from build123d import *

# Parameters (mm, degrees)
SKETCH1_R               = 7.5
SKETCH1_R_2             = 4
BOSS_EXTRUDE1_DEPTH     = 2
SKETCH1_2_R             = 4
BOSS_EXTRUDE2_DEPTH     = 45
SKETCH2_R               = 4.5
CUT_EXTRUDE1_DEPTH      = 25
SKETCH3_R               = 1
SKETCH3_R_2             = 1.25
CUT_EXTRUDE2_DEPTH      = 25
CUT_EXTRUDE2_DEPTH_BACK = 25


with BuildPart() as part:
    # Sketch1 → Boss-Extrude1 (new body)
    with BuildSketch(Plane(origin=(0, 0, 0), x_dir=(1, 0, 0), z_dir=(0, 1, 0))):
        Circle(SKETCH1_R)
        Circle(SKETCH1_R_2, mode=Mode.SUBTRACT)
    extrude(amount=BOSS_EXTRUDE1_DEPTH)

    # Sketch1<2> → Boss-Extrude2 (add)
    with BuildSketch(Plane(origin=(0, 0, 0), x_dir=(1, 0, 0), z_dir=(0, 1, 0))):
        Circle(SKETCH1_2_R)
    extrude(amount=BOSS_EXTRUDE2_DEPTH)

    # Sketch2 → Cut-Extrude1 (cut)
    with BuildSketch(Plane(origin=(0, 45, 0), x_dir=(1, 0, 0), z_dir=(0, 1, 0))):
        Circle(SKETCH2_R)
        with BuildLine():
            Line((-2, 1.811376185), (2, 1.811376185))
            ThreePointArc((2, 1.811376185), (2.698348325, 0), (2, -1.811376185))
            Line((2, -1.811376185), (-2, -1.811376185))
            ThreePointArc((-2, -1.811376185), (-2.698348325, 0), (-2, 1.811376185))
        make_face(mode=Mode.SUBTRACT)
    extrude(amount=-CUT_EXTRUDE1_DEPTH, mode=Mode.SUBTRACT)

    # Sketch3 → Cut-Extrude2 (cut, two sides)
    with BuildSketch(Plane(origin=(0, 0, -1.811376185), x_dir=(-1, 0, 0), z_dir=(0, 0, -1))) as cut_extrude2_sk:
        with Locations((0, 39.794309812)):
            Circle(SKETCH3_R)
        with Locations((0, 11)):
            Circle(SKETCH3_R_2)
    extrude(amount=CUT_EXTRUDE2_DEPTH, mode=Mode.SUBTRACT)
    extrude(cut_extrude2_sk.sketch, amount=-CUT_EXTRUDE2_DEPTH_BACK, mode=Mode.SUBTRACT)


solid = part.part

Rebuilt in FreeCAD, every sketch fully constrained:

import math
import FreeCAD as App
import Part
import Sketcher

V = App.Vector
Q = App.Units.Quantity

doc = App.newDocument("Part")
body = doc.addObject("PartDesign::Body", "Body")

sketch1 = body.newObject("Sketcher::SketchObject", "Sketch")
sketch1.AttachmentSupport = (doc.getObject("XZ_Plane"), [""])
sketch1.MapMode = "FlatFace"
sketch1.addGeometry(Part.Circle(V(0, 0, 0), V(0, 0, 1), 7.5), False)
sketch1.addGeometry(Part.Circle(V(0, 0, 0), V(0, 0, 1), 4), False)
sketch1.addConstraint(Sketcher.Constraint("Coincident", 0, 3, -1, 1))
sketch1.addConstraint(Sketcher.Constraint("Coincident", 1, 3, -1, 1))
sketch1.addConstraint(Sketcher.Constraint("Diameter", 0, Q("15 mm")))
sketch1.addConstraint(Sketcher.Constraint("Diameter", 1, Q("8 mm")))
pad1 = body.newObject("PartDesign::Pad", "Pad")
pad1.Profile = sketch1
pad1.Length = 2
pad1.Reversed = True

sketch2 = body.newObject("Sketcher::SketchObject", "Sketch001")
sketch2.AttachmentSupport = (doc.getObject("XZ_Plane"), [""])
sketch2.MapMode = "FlatFace"
sketch2.addGeometry(Part.Circle(V(0, 0, 0), V(0, 0, 1), 4), False)
sketch2.addConstraint(Sketcher.Constraint("Coincident", 0, 3, -1, 1))
sketch2.addConstraint(Sketcher.Constraint("Diameter", 0, Q("8 mm")))
pad2 = body.newObject("PartDesign::Pad", "Pad001")
pad2.Profile = sketch2
pad2.Length = 45
pad2.Reversed = True

sketch3 = body.newObject("Sketcher::SketchObject", "Sketch002")
sketch3.AttachmentSupport = (doc.getObject("XZ_Plane"), [""])
sketch3.MapMode = "FlatFace"
sketch3.AttachmentOffset = App.Placement(V(0, 0, -45), App.Rotation())
sketch3.addGeometry(Part.Circle(V(0, 0, 0), V(0, 0, 1), 4.5), False)
sketch3.addGeometry(Part.ArcOfCircle(Part.Circle(V(0, 0, 0), V(0, 0, 1), 2.698348), math.radians(137.833239), math.radians(222.166761)), False)
sketch3.addGeometry(Part.LineSegment(V(-2, -1.811376, 0), V(2, -1.811376, 0)), False)
sketch3.addGeometry(Part.ArcOfCircle(Part.Circle(V(0, 0, 0), V(0, 0, 1), 2.698348), math.radians(-42.166761), math.radians(42.166761)), False)
sketch3.addGeometry(Part.LineSegment(V(2, 1.811376, 0), V(-2, 1.811376, 0)), False)
sketch3.addConstraint(Sketcher.Constraint("Coincident", 1, 2, 2, 1))
sketch3.addConstraint(Sketcher.Constraint("Coincident", 2, 2, 3, 1))
sketch3.addConstraint(Sketcher.Constraint("Coincident", 3, 2, 4, 1))
sketch3.addConstraint(Sketcher.Constraint("Coincident", 4, 2, 1, 1))
sketch3.addConstraint(Sketcher.Constraint("Horizontal", 2))
sketch3.addConstraint(Sketcher.Constraint("Horizontal", 4))
sketch3.addConstraint(Sketcher.Constraint("Coincident", 0, 3, -1, 1))
sketch3.addConstraint(Sketcher.Constraint("Coincident", 1, 3, -1, 1))
sketch3.addConstraint(Sketcher.Constraint("Coincident", 3, 3, -1, 1))
sketch3.addConstraint(Sketcher.Constraint("Equal", 1, 3))
sketch3.addConstraint(Sketcher.Constraint("Vertical", 2, 2, 3, 2))
sketch3.addConstraint(Sketcher.Constraint("Diameter", 0, Q("9 mm")))
sketch3.addConstraint(Sketcher.Constraint("DistanceX", 2, 1, 2, 2, Q("4 mm")))
sketch3.addConstraint(Sketcher.Constraint("Radius", 1, Q("2.698348 mm")))
pocket1 = body.newObject("PartDesign::Pocket", "Pocket")
pocket1.Profile = sketch3
pocket1.Length = 25
pocket1.Reversed = True

sketch4 = body.newObject("Sketcher::SketchObject", "Sketch003")
sketch4.AttachmentSupport = (doc.getObject("XY_Plane"), [""])
sketch4.MapMode = "FlatFace"
sketch4.AttachmentOffset = App.Placement(V(0, 0, -1.811376), App.Rotation())
sketch4.addGeometry(Part.Circle(V(0, 39.79431, 0), V(0, 0, 1), 1), False)
sketch4.addGeometry(Part.Circle(V(0, 11, 0), V(0, 0, 1), 1.25), False)
sketch4.addConstraint(Sketcher.Constraint("PointOnObject", 0, 3, -2))
sketch4.addConstraint(Sketcher.Constraint("PointOnObject", 1, 3, -2))
sketch4.addConstraint(Sketcher.Constraint("Diameter", 0, Q("2 mm")))
sketch4.addConstraint(Sketcher.Constraint("Diameter", 1, Q("2.5 mm")))
sketch4.addConstraint(Sketcher.Constraint("DistanceY", -1, 1, 1, 3, Q("11 mm")))
sketch4.addConstraint(Sketcher.Constraint("DistanceY", -1, 1, 0, 3, Q("39.79431 mm")))
pocket2 = body.newObject("PartDesign::Pocket", "Pocket001")
pocket2.Profile = sketch4
pocket2.Type = "ThroughAll"
pocket2.Midplane = True

doc.recompute()
